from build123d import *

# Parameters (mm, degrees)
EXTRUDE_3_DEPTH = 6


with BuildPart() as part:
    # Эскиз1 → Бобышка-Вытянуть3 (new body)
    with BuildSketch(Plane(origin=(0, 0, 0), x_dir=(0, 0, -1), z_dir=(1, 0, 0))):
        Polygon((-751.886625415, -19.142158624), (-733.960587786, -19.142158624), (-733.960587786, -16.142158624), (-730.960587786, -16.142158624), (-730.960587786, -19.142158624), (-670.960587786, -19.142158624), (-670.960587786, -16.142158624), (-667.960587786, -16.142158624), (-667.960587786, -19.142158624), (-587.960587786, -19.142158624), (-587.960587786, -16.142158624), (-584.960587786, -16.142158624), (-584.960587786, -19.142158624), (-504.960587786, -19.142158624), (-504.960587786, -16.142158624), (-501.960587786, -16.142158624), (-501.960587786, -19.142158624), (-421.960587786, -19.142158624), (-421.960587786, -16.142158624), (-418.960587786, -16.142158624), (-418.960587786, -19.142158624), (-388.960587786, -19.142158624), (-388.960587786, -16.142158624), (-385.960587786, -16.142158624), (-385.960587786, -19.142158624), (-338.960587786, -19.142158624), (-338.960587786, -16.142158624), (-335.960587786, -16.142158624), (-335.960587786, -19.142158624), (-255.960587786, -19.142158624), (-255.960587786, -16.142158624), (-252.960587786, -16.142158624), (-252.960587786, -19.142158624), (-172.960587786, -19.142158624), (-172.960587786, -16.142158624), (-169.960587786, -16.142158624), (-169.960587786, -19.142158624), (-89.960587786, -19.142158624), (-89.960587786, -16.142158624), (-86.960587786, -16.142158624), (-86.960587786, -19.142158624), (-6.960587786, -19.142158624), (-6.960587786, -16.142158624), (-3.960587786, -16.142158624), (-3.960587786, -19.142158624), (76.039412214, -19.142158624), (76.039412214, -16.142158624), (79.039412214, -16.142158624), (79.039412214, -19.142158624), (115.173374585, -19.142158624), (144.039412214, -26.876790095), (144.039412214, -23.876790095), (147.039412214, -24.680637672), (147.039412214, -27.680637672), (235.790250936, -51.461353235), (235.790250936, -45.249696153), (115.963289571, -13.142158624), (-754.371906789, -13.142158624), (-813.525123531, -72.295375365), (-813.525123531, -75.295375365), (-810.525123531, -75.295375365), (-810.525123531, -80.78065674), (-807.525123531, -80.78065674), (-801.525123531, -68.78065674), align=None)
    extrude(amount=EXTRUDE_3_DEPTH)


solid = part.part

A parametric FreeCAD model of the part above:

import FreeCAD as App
import Part
import Sketcher
Q = App.Units.Quantity

doc = App.newDocument("Part")
body = doc.addObject("PartDesign::Body", "Body")

sketch1 = body.newObject("Sketcher::SketchObject", "Sketch")
sketch1.AttachmentSupport = (doc.getObject("YZ_Plane"), [""])
sketch1.MapMode = "FlatFace"
sketch1.addGeometry([
    Part.LineSegment(App.Vector(-19.1, 751.9, 0), App.Vector(-19.1, 734, 0)),
    Part.LineSegment(App.Vector(-19.1, 734, 0), App.Vector(-16.1, 734, 0)),
    Part.LineSegment(App.Vector(-16.1, 734, 0), App.Vector(-16.1, 731, 0)),
    Part.LineSegment(App.Vector(-16.1, 731, 0), App.Vector(-19.1, 731, 0)),
    Part.LineSegment(App.Vector(-19.1, 731, 0), App.Vector(-19.1, 671, 0)),
    Part.LineSegment(App.Vector(-19.1, 671, 0), App.Vector(-16.1, 671, 0)),
    Part.LineSegment(App.Vector(-16.1, 671, 0), App.Vector(-16.1, 668, 0)),
    Part.LineSegment(App.Vector(-16.1, 668, 0), App.Vector(-19.1, 668, 0)),
    Part.LineSegment(App.Vector(-19.1, 668, 0), App.Vector(-19.1, 588, 0)),
    Part.LineSegment(App.Vector(-19.1, 588, 0), App.Vector(-16.1, 588, 0)),
    Part.LineSegment(App.Vector(-16.1, 588, 0), App.Vector(-16.1, 585, 0)),
    Part.LineSegment(App.Vector(-16.1, 585, 0), App.Vector(-19.1, 585, 0)),
    Part.LineSegment(App.Vector(-19.1, 585, 0), App.Vector(-19.1, 505, 0)),
    Part.LineSegment(App.Vector(-19.1, 505, 0), App.Vector(-16.1, 505, 0)),
    Part.LineSegment(App.Vector(-16.1, 505, 0), App.Vector(-16.1, 502, 0)),
    Part.LineSegment(App.Vector(-16.1, 502, 0), App.Vector(-19.1, 502, 0)),
    Part.LineSegment(App.Vector(-19.1, 502, 0), App.Vector(-19.1, 422, 0)),
    Part.LineSegment(App.Vector(-19.1, 422, 0), App.Vector(-16.1, 422, 0)),
    Part.LineSegment(App.Vector(-16.1, 422, 0), App.Vector(-16.1, 419, 0)),
    Part.LineSegment(App.Vector(-16.1, 419, 0), App.Vector(-19.1, 419, 0)),
    Part.LineSegment(App.Vector(-19.1, 419, 0), App.Vector(-19.1, 389, 0)),
    Part.LineSegment(App.Vector(-19.1, 389, 0), App.Vector(-16.1, 389, 0)),
    Part.LineSegment(App.Vector(-16.1, 389, 0), App.Vector(-16.1, 386, 0)),
    Part.LineSegment(App.Vector(-16.1, 386, 0), App.Vector(-19.1, 386, 0)),
    Part.LineSegment(App.Vector(-19.1, 386, 0), App.Vector(-19.1, 339, 0)),
    Part.LineSegment(App.Vector(-19.1, 339, 0), App.Vector(-16.1, 339, 0)),
    Part.LineSegment(App.Vector(-16.1, 339, 0), App.Vector(-16.1, 336, 0)),
    Part.LineSegment(App.Vector(-16.1, 336, 0), App.Vector(-19.1, 336, 0)),
    Part.LineSegment(App.Vector(-19.1, 336, 0), App.Vector(-19.1, 256, 0)),
    Part.LineSegment(App.Vector(-19.1, 256, 0), App.Vector(-16.1, 256, 0)),
    Part.LineSegment(App.Vector(-16.1, 256, 0), App.Vector(-16.1, 253, 0)),
    Part.LineSegment(App.Vector(-16.1, 253, 0), App.Vector(-19.1, 253, 0)),
    Part.LineSegment(App.Vector(-19.1, 253, 0), App.Vector(-19.1, 173, 0)),
    Part.LineSegment(App.Vector(-19.1, 173, 0), App.Vector(-16.1, 173, 0)),
    Part.LineSegment(App.Vector(-16.1, 173, 0), App.Vector(-16.1, 170, 0)),
    Part.LineSegment(App.Vector(-16.1, 170, 0), App.Vector(-19.1, 170, 0)),
    Part.LineSegment(App.Vector(-19.1, 170, 0), App.Vector(-19.1, 90, 0)),
    Part.LineSegment(App.Vector(-19.1, 90, 0), App.Vector(-16.1, 90, 0)),
    Part.LineSegment(App.Vector(-16.1, 90, 0), App.Vector(-16.1, 87, 0)),
    Part.LineSegment(App.Vector(-16.1, 87, 0), App.Vector(-19.1, 87, 0)),
    Part.LineSegment(App.Vector(-19.1, 87, 0), App.Vector(-19.1, 7, 0)),
    Part.LineSegment(App.Vector(-19.1, 7, 0), App.Vector(-16.1, 7, 0)),
    Part.LineSegment(App.Vector(-16.1, 7, 0), App.Vector(-16.1, 4, 0)),
    Part.LineSegment(App.Vector(-16.1, 4, 0), App.Vector(-19.1, 4, 0)),
    Part.LineSegment(App.Vector(-19.1, 4, 0), App.Vector(-19.1, -76, 0)),
    Part.LineSegment(App.Vector(-19.1, -76, 0), App.Vector(-16.1, -76, 0)),
    Part.LineSegment(App.Vector(-16.1, -76, 0), App.Vector(-16.1, -79, 0)),
    Part.LineSegment(App.Vector(-16.1, -79, 0), App.Vector(-19.1, -79, 0)),
    Part.LineSegment(App.Vector(-19.1, -79, 0), App.Vector(-19.1, -115.2, 0)),
    Part.LineSegment(App.Vector(-19.1, -115.2, 0), App.Vector(-26.9, -144, 0)),
    Part.LineSegment(App.Vector(-26.9, -144, 0), App.Vector(-23.9, -144, 0)),
    Part.LineSegment(App.Vector(-23.9, -144, 0), App.Vector(-24.7, -147, 0)),
    Part.LineSegment(App.Vector(-24.7, -147, 0), App.Vector(-27.7, -147, 0)),
    Part.LineSegment(App.Vector(-27.7, -147, 0), App.Vector(-51.5, -235.8, 0)),
    Part.LineSegment(App.Vector(-51.5, -235.8, 0), App.Vector(-45.2, -235.8, 0)),
    Part.LineSegment(App.Vector(-45.2, -235.8, 0), App.Vector(-13.1, -116, 0)),
    Part.LineSegment(App.Vector(-13.1, -116, 0), App.Vector(-13.1, 754.4, 0)),
    Part.LineSegment(App.Vector(-13.1, 754.4, 0), App.Vector(-72.3, 813.5, 0)),
    Part.LineSegment(App.Vector(-72.3, 813.5, 0), App.Vector(-75.3, 813.5, 0)),
    Part.LineSegment(App.Vector(-75.3, 813.5, 0), App.Vector(-75.3, 810.5, 0)),
    Part.LineSegment(App.Vector(-75.3, 810.5, 0), App.Vector(-80.8, 810.5, 0)),
    Part.LineSegment(App.Vector(-80.8, 810.5, 0), App.Vector(-80.8, 807.5, 0)),
    Part.LineSegment(App.Vector(-80.8, 807.5, 0), App.Vector(-68.8, 801.5, 0)),
    Part.LineSegment(App.Vector(-68.8, 801.5, 0), App.Vector(-19.1, 751.9, 0)),
], False)
sketch1.addConstraint([
    Sketcher.Constraint("Coincident", 0, 2, 1, 1),
    Sketcher.Constraint("Coincident", 1, 2, 2, 1),
    Sketcher.Constraint("Coincident", 2, 2, 3, 1),
    Sketcher.Constraint("Coincident", 3, 2, 4, 1),
    Sketcher.Constraint("Coincident", 4, 2, 5, 1),
    Sketcher.Constraint("Coincident", 5, 2, 6, 1),
    Sketcher.Constraint("Coincident", 6, 2, 7, 1),
    Sketcher.Constraint("Coincident", 7, 2, 8, 1),
    Sketcher.Constraint("Coincident", 8, 2, 9, 1),
    Sketcher.Constraint("Coincident", 9, 2, 10, 1),
    Sketcher.Constraint("Coincident", 10, 2, 11, 1),
    Sketcher.Constraint("Coincident", 11, 2, 12, 1),
    Sketcher.Constraint("Coincident", 12, 2, 13, 1),
    Sketcher.Constraint("Coincident", 13, 2, 14, 1),
    Sketcher.Constraint("Coincident", 14, 2, 15, 1),
    Sketcher.Constraint("Coincident", 15, 2, 16, 1),
    Sketcher.Constraint("Coincident", 16, 2, 17, 1),
    Sketcher.Constraint("Coincident", 17, 2, 18, 1),
    Sketcher.Constraint("Coincident", 18, 2, 19, 1),
    Sketcher.Constraint("Coincident", 19, 2, 20, 1),
    Sketcher.Constraint("Coincident", 20, 2, 21, 1),
    Sketcher.Constraint("Coincident", 21, 2, 22, 1),
    Sketcher.Constraint("Coincident", 22, 2, 23, 1),
    Sketcher.Constraint("Coincident", 23, 2, 24, 1),
    Sketcher.Constraint("Coincident", 24, 2, 25, 1),
    Sketcher.Constraint("Coincident", 25, 2, 26, 1),
    Sketcher.Constraint("Coincident", 26, 2, 27, 1),
    Sketcher.Constraint("Coincident", 27, 2, 28, 1),
    Sketcher.Constraint("Coincident", 28, 2, 29, 1),
    Sketcher.Constraint("Coincident", 29, 2, 30, 1),
    Sketcher.Constraint("Coincident", 30, 2, 31, 1),
    Sketcher.Constraint("Coincident", 31, 2, 32, 1),
    Sketcher.Constraint("Coincident", 32, 2, 33, 1),
    Sketcher.Constraint("Coincident", 33, 2, 34, 1),
    Sketcher.Constraint("Coincident", 34, 2, 35, 1),
    Sketcher.Constraint("Coincident", 35, 2, 36, 1),
    Sketcher.Constraint("Coincident", 36, 2, 37, 1),
    Sketcher.Constraint("Coincident", 37, 2, 38, 1),
    Sketcher.Constraint("Coincident", 38, 2, 39, 1),
    Sketcher.Constraint("Coincident", 39, 2, 40, 1),
    Sketcher.Constraint("Coincident", 40, 2, 41, 1),
    Sketcher.Constraint("Coincident", 41, 2, 42, 1),
    Sketcher.Constraint("Coincident", 42, 2, 43, 1),
    Sketcher.Constraint("Coincident", 43, 2, 44, 1),
    Sketcher.Constraint("Coincident", 44, 2, 45, 1),
    Sketcher.Constraint("Coincident", 45, 2, 46, 1),
    Sketcher.Constraint("Coincident", 46, 2, 47, 1),
    Sketcher.Constraint("Coincident", 47, 2, 48, 1),
    Sketcher.Constraint("Coincident", 48, 2, 49, 1),
    Sketcher.Constraint("Coincident", 49, 2, 50, 1),
    Sketcher.Constraint("Coincident", 50, 2, 51, 1),
    Sketcher.Constraint("Coincident", 51, 2, 52, 1),
    Sketcher.Constraint("Coincident", 52, 2, 53, 1),
    Sketcher.Constraint("Coincident", 53, 2, 54, 1),
    Sketcher.Constraint("Coincident", 54, 2, 55, 1),
    Sketcher.Constraint("Coincident", 55, 2, 56, 1),
    Sketcher.Constraint("Coincident", 56, 2, 57, 1),
    Sketcher.Constraint("Coincident", 57, 2, 58, 1),
    Sketcher.Constraint("Coincident", 58, 2, 59, 1),
    Sketcher.Constraint("Coincident", 59, 2, 60, 1),
    Sketcher.Constraint("Coincident", 60, 2, 61, 1),
    Sketcher.Constraint("Coincident", 61, 2, 62, 1),
    Sketcher.Constraint("Coincident", 62, 2, 63, 1),
    Sketcher.Constraint("Coincident", 63, 2, 0, 1),
    Sketcher.Constraint("Vertical", 0),
    Sketcher.Constraint("Horizontal", 1),
    Sketcher.Constraint("Vertical", 2),
    Sketcher.Constraint("Horizontal", 3),
    Sketcher.Constraint("Vertical", 4),
    Sketcher.Constraint("Horizontal", 5),
    Sketcher.Constraint("Vertical", 6),
    Sketcher.Constraint("Horizontal", 7),
    Sketcher.Constraint("Vertical", 8),
    Sketcher.Constraint("Horizontal", 9),
    Sketcher.Constraint("Vertical", 10),
    Sketcher.Constraint("Horizontal", 11),
    Sketcher.Constraint("Vertical", 12),
    Sketcher.Constraint("Horizontal", 13),
    Sketcher.Constraint("Vertical", 14),
    Sketcher.Constraint("Horizontal", 15),
    Sketcher.Constraint("Vertical", 16),
    Sketcher.Constraint("Horizontal", 17),
    Sketcher.Constraint("Vertical", 18),
    Sketcher.Constraint("Horizontal", 19),
    Sketcher.Constraint("Vertical", 20),
    Sketcher.Constraint("Horizontal", 21),
    Sketcher.Constraint("Vertical", 22),
    Sketcher.Constraint("Horizontal", 23),
    Sketcher.Constraint("Vertical", 24),
    Sketcher.Constraint("Horizontal", 25),
    Sketcher.Constraint("Vertical", 26),
    Sketcher.Constraint("Horizontal", 27),
    Sketcher.Constraint("Vertical", 28),
    Sketcher.Constraint("Horizontal", 29),
    Sketcher.Constraint("Vertical", 30),
    Sketcher.Constraint("Horizontal", 31),
    Sketcher.Constraint("Vertical", 32),
    Sketcher.Constraint("Horizontal", 33),
    Sketcher.Constraint("Vertical", 34),
    Sketcher.Constraint("Horizontal", 35),
    Sketcher.Constraint("Vertical", 36),
    Sketcher.Constraint("Horizontal", 37),
    Sketcher.Constraint("Vertical", 38),
    Sketcher.Constraint("Horizontal", 39),
    Sketcher.Constraint("Vertical", 40),
    Sketcher.Constraint("Horizontal", 41),
    Sketcher.Constraint("Vertical", 42),
    Sketcher.Constraint("Horizontal", 43),
    Sketcher.Constraint("Vertical", 44),
    Sketcher.Constraint("Horizontal", 45),
    Sketcher.Constraint("Vertical", 46),
    Sketcher.Constraint("Horizontal", 47),
    Sketcher.Constraint("Vertical", 48),
    Sketcher.Constraint("Horizontal", 50),
    Sketcher.Constraint("Horizontal", 52),
    Sketcher.Constraint("Horizontal", 54),
    Sketcher.Constraint("Vertical", 56),
    Sketcher.Constraint("Horizontal", 58),
    Sketcher.Constraint("Vertical", 59),
    Sketcher.Constraint("Horizontal", 60),
    Sketcher.Constraint("Vertical", 61),
    Sketcher.Constraint("Parallel", 49, 51),
    Sketcher.Constraint("Parallel", 51, 53),
    Sketcher.Constraint("Parallel", 53, 55),
    Sketcher.Constraint("Parallel", 57, 63),
    Sketcher.Constraint("Vertical", 0, 2, 3, 2),
    Sketcher.Constraint("Vertical", 2, 2, 5, 2),
    Sketcher.Constraint("Vertical", 4, 2, 7, 2),
    Sketcher.Constraint("Vertical", 6, 2, 9, 2),
    Sketcher.Constraint("Vertical", 8, 2, 11, 2),
    Sketcher.Constraint("Vertical", 10, 2, 13, 2),
    Sketcher.Constraint("Vertical", 12, 2, 15, 2),
    Sketcher.Constraint("Vertical", 14, 2, 17, 2),
    Sketcher.Constraint("Vertical", 16, 2, 19, 2),
    Sketcher.Constraint("Vertical", 18, 2, 21, 2),
    Sketcher.Constraint("Vertical", 20, 2, 23, 2),
    Sketcher.Constraint("Vertical", 22, 2, 25, 2),
    Sketcher.Constraint("Vertical", 24, 2, 27, 2),
    Sketcher.Constraint("Vertical", 26, 2, 29, 2),
    Sketcher.Constraint("Vertical", 28, 2, 31, 2),
    Sketcher.Constraint("Vertical", 30, 2, 33, 2),
    Sketcher.Constraint("Vertical", 32, 2, 35, 2),
    Sketcher.Constraint("Vertical", 34, 2, 37, 2),
    Sketcher.Constraint("Vertical", 36, 2, 39, 2),
    Sketcher.Constraint("Vertical", 38, 2, 41, 2),
    Sketcher.Constraint("Vertical", 40, 2, 43, 2),
    Sketcher.Constraint("Vertical", 42, 2, 45, 2),
    Sketcher.Constraint("Vertical", 44, 2, 47, 2),
    Sketcher.Constraint("Equal", 47, 50),
    Sketcher.Constraint("Equal", 50, 52),
    Sketcher.Constraint("Equal", 52, 58),
    Sketcher.Constraint("Equal", 58, 2),
    Sketcher.Constraint("Equal", 2, 6),
    Sketcher.Constraint("Equal", 6, 10),
    Sketcher.Constraint("Equal", 8, 12),
    Sketcher.Constraint("Equal", 10, 14),
    Sketcher.Constraint("Equal", 12, 16),
    Sketcher.Constraint("Equal", 14, 18),
    Sketcher.Constraint("Equal", 18, 22),
    Sketcher.Constraint("Equal", 22, 26),
    Sketcher.Constraint("Equal", 16, 28),
    Sketcher.Constraint("Equal", 26, 30),
    Sketcher.Constraint("Equal", 28, 32),
    Sketcher.Constraint("Equal", 30, 34),
    Sketcher.Constraint("Equal", 32, 36),
    Sketcher.Constraint("Equal", 34, 38),
    Sketcher.Constraint("Equal", 36, 40),
    Sketcher.Constraint("Equal", 38, 42),
    Sketcher.Constraint("Equal", 40, 44),
    Sketcher.Constraint("Equal", 42, 46),
    Sketcher.Constraint("Equal", 46, 59),
    Sketcher.Constraint("Equal", 59, 61),
    Sketcher.Constraint("DistanceX", 1, 1, 1, 2, 3.0),
    Sketcher.Constraint("DistanceY", 4, 2, 4, 1, 60.0),
    Sketcher.Constraint("DistanceY", 8, 2, 8, 1, 80.0),
    Sketcher.Constraint("DistanceY", 20, 2, 20, 1, 30.0),
    Sketcher.Constraint("DistanceY", 24, 2, 24, 1, 47.0),
    Sketcher.Constraint("Angle", 49, Q("-105 deg")),
    Sketcher.Constraint("Angle", 57, Q("135 deg")),
    Sketcher.Constraint("Distance", 55, 124.053999),
    Sketcher.Constraint("DistanceX", 60, 2, 60, 1, 5.485281),
    Sketcher.Constraint("Distance", 49, 29.884321),
    Sketcher.Constraint("Distance", 51, 3.105829),
    Sketcher.Constraint("Distance", 53, 91.881629),
    Sketcher.Constraint("Distance", 57, 83.655281),
    Sketcher.Constraint("DistanceX", 54, 1, 54, 2, 6.211657),
    Sketcher.Constraint("DistanceY", 0, 2, 0, 1, 17.926038),
    Sketcher.Constraint("DistanceY", 48, 2, 48, 1, 36.133962),
    Sketcher.Constraint("DistanceY", 56, 1, 56, 2, 870.335196),
    Sketcher.Constraint("DistanceX", 0, 2, -1, 1, 19.142159),
    Sketcher.Constraint("DistanceY", 53, 2, -1, 1, 235.790251),
    Sketcher.Constraint("Distance", 62, 13.416408),
])
pad1 = body.newObject("PartDesign::Pad", "Pad")
pad1.Profile = sketch1
pad1.Length = 6

doc.recompute()
